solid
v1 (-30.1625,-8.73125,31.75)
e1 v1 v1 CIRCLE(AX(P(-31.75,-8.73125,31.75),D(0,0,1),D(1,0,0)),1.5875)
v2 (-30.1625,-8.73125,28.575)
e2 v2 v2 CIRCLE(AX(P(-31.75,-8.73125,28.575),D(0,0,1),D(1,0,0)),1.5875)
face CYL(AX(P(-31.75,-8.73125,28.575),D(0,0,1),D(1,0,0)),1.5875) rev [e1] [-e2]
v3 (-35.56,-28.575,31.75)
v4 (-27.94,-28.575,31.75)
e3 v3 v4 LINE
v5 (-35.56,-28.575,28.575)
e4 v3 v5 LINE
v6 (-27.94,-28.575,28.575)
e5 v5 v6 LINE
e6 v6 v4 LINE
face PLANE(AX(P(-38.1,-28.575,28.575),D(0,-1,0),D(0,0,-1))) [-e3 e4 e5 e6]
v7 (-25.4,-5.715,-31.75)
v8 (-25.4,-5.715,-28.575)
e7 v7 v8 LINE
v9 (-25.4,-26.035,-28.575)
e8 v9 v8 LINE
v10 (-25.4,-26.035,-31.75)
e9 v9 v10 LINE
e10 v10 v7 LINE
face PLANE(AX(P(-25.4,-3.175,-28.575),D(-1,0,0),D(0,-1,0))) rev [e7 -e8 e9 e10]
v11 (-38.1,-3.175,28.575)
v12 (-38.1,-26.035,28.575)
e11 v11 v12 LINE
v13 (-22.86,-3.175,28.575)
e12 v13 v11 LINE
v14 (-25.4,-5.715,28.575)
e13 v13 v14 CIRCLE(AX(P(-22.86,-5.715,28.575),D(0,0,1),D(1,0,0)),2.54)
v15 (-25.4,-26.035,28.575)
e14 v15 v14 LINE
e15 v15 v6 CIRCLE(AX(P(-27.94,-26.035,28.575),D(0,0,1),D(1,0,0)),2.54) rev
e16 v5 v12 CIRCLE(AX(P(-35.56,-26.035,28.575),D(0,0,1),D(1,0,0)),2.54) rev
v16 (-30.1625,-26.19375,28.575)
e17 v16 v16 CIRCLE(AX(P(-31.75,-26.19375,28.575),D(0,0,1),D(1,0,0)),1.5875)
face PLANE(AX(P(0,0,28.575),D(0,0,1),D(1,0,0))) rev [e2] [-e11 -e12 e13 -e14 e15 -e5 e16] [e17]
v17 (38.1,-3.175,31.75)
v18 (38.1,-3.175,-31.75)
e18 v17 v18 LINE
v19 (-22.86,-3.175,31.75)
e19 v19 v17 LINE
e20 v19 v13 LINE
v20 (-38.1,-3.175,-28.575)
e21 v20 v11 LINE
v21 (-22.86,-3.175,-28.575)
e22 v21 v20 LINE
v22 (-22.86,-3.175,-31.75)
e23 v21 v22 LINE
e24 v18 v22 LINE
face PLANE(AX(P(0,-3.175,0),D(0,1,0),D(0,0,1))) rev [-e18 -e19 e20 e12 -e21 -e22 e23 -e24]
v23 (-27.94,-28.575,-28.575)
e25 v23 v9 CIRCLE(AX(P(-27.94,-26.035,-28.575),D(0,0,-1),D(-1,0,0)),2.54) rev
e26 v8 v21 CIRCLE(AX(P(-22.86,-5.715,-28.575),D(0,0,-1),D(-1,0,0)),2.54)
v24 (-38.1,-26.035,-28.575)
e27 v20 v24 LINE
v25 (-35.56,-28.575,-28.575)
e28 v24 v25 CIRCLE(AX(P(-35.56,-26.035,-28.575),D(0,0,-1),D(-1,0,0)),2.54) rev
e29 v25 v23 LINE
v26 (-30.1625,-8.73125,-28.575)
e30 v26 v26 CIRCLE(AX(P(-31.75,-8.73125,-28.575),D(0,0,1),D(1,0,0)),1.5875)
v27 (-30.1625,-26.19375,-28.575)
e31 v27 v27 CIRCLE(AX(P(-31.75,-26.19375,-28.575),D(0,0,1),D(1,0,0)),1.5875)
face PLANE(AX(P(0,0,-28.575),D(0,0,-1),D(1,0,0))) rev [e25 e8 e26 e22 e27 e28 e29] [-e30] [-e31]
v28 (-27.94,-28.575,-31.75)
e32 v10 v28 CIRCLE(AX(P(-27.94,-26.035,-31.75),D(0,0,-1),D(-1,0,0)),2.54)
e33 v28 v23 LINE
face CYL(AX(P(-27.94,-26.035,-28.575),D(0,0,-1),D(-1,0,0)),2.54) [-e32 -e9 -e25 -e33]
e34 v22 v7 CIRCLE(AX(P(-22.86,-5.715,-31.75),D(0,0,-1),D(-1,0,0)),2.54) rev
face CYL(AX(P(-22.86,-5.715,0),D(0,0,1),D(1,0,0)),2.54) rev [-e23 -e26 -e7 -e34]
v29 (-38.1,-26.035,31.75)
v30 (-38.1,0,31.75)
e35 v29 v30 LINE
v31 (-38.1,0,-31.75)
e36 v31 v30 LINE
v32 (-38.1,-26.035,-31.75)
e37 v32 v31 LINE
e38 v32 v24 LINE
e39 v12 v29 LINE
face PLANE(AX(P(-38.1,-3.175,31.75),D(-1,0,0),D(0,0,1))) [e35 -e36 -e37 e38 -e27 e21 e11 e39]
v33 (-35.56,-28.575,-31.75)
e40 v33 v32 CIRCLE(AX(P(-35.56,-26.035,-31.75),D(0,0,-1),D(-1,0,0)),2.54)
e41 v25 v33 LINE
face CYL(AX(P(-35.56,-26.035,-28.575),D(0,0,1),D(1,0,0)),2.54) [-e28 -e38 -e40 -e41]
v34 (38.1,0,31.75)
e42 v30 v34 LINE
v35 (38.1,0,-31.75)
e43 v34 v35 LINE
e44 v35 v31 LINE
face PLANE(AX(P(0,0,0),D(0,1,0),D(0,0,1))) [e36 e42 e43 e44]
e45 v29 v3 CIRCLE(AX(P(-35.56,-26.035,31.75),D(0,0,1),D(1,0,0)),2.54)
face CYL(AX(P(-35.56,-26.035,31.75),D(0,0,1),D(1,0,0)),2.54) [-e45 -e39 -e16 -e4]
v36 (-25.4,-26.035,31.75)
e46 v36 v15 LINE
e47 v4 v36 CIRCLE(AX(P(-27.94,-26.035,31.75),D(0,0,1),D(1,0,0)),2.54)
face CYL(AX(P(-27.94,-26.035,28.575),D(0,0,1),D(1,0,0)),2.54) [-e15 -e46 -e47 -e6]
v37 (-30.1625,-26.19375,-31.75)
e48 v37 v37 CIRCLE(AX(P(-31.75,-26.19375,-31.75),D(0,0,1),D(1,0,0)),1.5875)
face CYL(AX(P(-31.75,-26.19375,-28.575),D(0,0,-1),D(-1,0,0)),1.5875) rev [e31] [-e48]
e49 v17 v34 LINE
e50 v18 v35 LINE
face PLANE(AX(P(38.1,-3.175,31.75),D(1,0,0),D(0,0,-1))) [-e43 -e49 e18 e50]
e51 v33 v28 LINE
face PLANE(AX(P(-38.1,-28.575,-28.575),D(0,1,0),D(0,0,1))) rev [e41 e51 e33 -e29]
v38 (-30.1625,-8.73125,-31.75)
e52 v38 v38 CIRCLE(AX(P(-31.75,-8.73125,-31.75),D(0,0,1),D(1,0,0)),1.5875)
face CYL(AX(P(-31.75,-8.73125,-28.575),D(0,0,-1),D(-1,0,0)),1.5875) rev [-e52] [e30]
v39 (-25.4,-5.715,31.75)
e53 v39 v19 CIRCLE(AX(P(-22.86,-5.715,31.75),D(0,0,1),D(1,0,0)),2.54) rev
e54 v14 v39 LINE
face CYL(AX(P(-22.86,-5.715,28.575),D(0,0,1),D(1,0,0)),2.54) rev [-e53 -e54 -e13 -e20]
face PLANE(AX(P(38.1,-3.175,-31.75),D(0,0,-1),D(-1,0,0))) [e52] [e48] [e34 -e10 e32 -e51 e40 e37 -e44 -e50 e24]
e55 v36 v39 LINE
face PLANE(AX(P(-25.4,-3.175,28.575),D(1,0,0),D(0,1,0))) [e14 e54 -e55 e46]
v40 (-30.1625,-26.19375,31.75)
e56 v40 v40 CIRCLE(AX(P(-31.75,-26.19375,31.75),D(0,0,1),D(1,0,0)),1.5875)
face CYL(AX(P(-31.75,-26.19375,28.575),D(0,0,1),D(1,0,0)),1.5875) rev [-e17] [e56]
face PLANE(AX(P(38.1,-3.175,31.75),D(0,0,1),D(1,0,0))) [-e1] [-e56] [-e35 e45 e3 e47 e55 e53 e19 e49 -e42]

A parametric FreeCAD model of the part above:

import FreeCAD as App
import Part
import Sketcher
from FreeCAD import Vector
Q = App.Units.Quantity


def edges_at(feature, points):
    """Names of the edges that pass closest to the given points."""
    edges = feature.Shape.Edges
    near = lambda p: min(range(len(edges)), key=lambda i: edges[i].distToShape(Part.Vertex(*p))[0])
    return sorted({f"Edge{near(p) + 1}" for p in points})

doc = App.newDocument("Part")
body = doc.addObject("PartDesign::Body", "Body")

sketch1 = body.newObject("Sketcher::SketchObject", "Sketch")
sketch1.AttachmentSupport = (doc.getObject("XZ_Plane"), [""])
sketch1.MapMode = "FlatFace"
sketch1.addGeometry([
    Part.LineSegment(Vector(-38, -32, 0), Vector(-38, 32, 0)),
    Part.LineSegment(Vector(-38, 32, 0), Vector(38, 32, 0)),
    Part.LineSegment(Vector(38, 32, 0), Vector(38, -32, 0)),
    Part.LineSegment(Vector(38, -32, 0), Vector(-38, -32, 0)),
], False)
sketch1.addConstraint([
    Sketcher.Constraint("Coincident", 0, 2, 1, 1),
    Sketcher.Constraint("Coincident", 1, 2, 2, 1),
    Sketcher.Constraint("Coincident", 2, 2, 3, 1),
    Sketcher.Constraint("Coincident", 3, 2, 0, 1),
    Sketcher.Constraint("Vertical", 0),
    Sketcher.Constraint("Horizontal", 1),
    Sketcher.Constraint("Vertical", 2),
    Sketcher.Constraint("Horizontal", 3),
    Sketcher.Constraint("Symmetric", 0, 2, 2, 2, -1, 1),
    Sketcher.Constraint("DistanceX", 1, 1, 1, 2, Q("3 in")),
    Sketcher.Constraint("DistanceY", 0, 1, 0, 2, Q("2.5 in")),
])
pad1 = body.newObject("PartDesign::Pad", "Pad")
pad1.Profile = sketch1
pad1.Length = Q("0.125 in")

sketch2 = body.newObject("Sketcher::SketchObject", "Sketch001")
sketch2.AttachmentSupport = (doc.getObject("XY_Plane"), [""])
sketch2.MapMode = "FlatFace"
sketch2.AttachmentOffset = App.Placement(Vector(0, 0, 1.25 * 25.4), App.Rotation())
sketch2.addGeometry([
    Part.LineSegment(Vector(-38.1, -3.2, 0), Vector(-38.1, -28.6, 0)),
    Part.LineSegment(Vector(-38.1, -28.6, 0), Vector(-25.4, -28.6, 0)),
    Part.LineSegment(Vector(-25.4, -28.6, 0), Vector(-25.4, -3.2, 0)),
    Part.LineSegment(Vector(-25.4, -3.2, 0), Vector(-38.1, -3.2, 0)),
    Part.Circle(Vector(-31.8, -26.2, 0), Vector(0, 0, 1), 1.6),
    Part.Circle(Vector(-31.8, -8.7, 0), Vector(0, 0, 1), 1.6),
], False)
sketch2.addConstraint([
    Sketcher.Constraint("Coincident", 0, 2, 1, 1),
    Sketcher.Constraint("Coincident", 1, 2, 2, 1),
    Sketcher.Constraint("Coincident", 2, 2, 3, 1),
    Sketcher.Constraint("Coincident", 3, 2, 0, 1),
    Sketcher.Constraint("Vertical", 0),
    Sketcher.Constraint("Horizontal", 1),
    Sketcher.Constraint("Vertical", 2),
    Sketcher.Constraint("Horizontal", 3),
    Sketcher.Constraint("Equal", 4, 5),
    Sketcher.Constraint("Vertical", 4, 3, 5, 3),
    Sketcher.Constraint("DistanceY", 0, 2, 0, 1, Q("1 in")),
    Sketcher.Constraint("Diameter", 4, Q("0.125 in")),
    Sketcher.Constraint("DistanceX", 1, 1, 1, 2, Q("0.5 in")),
    Sketcher.Constraint("DistanceX", 1, 2, -1, 1, Q("1 in")),
    Sketcher.Constraint("DistanceX", 4, 3, -1, 1, Q("1.25 in")),
    Sketcher.Constraint("DistanceY", 4, 3, -1, 1, Q("1.03125 in")),
    Sketcher.Constraint("DistanceY", 5, 3, -1, 1, Q("0.34375 in")),
    Sketcher.Constraint("DistanceY", 0, 2, -1, 1, Q("1.125 in")),
])
pad2 = body.newObject("PartDesign::Pad", "Pad001")
pad2.Profile = sketch2
pad2.Length = Q("0.125 in")
pad2.Reversed = True
doc.recompute()

mirrored = body.newObject("PartDesign::Mirrored", "Mirrored")
mirrored.Originals = [pad2]
mirrored.MirrorPlane = (doc.getObject("XY_Plane"), [""])
body.Tip = mirrored
doc.recompute()

fillet = body.newObject("PartDesign::Fillet", "Fillet")
fillet.Base = (mirrored, edges_at(mirrored, [
    (-38.1, -28.575, 30.163),
    (-25.4, -3.175, 30.163),
    (-25.4, -28.575, 30.163),
    (-38.1, -28.575, -30.163),
    (-25.4, -28.575, -30.163),
    (-25.4, -3.175, -30.163),
]))
fillet.Radius = Q("0.1 in")

doc.recompute()
